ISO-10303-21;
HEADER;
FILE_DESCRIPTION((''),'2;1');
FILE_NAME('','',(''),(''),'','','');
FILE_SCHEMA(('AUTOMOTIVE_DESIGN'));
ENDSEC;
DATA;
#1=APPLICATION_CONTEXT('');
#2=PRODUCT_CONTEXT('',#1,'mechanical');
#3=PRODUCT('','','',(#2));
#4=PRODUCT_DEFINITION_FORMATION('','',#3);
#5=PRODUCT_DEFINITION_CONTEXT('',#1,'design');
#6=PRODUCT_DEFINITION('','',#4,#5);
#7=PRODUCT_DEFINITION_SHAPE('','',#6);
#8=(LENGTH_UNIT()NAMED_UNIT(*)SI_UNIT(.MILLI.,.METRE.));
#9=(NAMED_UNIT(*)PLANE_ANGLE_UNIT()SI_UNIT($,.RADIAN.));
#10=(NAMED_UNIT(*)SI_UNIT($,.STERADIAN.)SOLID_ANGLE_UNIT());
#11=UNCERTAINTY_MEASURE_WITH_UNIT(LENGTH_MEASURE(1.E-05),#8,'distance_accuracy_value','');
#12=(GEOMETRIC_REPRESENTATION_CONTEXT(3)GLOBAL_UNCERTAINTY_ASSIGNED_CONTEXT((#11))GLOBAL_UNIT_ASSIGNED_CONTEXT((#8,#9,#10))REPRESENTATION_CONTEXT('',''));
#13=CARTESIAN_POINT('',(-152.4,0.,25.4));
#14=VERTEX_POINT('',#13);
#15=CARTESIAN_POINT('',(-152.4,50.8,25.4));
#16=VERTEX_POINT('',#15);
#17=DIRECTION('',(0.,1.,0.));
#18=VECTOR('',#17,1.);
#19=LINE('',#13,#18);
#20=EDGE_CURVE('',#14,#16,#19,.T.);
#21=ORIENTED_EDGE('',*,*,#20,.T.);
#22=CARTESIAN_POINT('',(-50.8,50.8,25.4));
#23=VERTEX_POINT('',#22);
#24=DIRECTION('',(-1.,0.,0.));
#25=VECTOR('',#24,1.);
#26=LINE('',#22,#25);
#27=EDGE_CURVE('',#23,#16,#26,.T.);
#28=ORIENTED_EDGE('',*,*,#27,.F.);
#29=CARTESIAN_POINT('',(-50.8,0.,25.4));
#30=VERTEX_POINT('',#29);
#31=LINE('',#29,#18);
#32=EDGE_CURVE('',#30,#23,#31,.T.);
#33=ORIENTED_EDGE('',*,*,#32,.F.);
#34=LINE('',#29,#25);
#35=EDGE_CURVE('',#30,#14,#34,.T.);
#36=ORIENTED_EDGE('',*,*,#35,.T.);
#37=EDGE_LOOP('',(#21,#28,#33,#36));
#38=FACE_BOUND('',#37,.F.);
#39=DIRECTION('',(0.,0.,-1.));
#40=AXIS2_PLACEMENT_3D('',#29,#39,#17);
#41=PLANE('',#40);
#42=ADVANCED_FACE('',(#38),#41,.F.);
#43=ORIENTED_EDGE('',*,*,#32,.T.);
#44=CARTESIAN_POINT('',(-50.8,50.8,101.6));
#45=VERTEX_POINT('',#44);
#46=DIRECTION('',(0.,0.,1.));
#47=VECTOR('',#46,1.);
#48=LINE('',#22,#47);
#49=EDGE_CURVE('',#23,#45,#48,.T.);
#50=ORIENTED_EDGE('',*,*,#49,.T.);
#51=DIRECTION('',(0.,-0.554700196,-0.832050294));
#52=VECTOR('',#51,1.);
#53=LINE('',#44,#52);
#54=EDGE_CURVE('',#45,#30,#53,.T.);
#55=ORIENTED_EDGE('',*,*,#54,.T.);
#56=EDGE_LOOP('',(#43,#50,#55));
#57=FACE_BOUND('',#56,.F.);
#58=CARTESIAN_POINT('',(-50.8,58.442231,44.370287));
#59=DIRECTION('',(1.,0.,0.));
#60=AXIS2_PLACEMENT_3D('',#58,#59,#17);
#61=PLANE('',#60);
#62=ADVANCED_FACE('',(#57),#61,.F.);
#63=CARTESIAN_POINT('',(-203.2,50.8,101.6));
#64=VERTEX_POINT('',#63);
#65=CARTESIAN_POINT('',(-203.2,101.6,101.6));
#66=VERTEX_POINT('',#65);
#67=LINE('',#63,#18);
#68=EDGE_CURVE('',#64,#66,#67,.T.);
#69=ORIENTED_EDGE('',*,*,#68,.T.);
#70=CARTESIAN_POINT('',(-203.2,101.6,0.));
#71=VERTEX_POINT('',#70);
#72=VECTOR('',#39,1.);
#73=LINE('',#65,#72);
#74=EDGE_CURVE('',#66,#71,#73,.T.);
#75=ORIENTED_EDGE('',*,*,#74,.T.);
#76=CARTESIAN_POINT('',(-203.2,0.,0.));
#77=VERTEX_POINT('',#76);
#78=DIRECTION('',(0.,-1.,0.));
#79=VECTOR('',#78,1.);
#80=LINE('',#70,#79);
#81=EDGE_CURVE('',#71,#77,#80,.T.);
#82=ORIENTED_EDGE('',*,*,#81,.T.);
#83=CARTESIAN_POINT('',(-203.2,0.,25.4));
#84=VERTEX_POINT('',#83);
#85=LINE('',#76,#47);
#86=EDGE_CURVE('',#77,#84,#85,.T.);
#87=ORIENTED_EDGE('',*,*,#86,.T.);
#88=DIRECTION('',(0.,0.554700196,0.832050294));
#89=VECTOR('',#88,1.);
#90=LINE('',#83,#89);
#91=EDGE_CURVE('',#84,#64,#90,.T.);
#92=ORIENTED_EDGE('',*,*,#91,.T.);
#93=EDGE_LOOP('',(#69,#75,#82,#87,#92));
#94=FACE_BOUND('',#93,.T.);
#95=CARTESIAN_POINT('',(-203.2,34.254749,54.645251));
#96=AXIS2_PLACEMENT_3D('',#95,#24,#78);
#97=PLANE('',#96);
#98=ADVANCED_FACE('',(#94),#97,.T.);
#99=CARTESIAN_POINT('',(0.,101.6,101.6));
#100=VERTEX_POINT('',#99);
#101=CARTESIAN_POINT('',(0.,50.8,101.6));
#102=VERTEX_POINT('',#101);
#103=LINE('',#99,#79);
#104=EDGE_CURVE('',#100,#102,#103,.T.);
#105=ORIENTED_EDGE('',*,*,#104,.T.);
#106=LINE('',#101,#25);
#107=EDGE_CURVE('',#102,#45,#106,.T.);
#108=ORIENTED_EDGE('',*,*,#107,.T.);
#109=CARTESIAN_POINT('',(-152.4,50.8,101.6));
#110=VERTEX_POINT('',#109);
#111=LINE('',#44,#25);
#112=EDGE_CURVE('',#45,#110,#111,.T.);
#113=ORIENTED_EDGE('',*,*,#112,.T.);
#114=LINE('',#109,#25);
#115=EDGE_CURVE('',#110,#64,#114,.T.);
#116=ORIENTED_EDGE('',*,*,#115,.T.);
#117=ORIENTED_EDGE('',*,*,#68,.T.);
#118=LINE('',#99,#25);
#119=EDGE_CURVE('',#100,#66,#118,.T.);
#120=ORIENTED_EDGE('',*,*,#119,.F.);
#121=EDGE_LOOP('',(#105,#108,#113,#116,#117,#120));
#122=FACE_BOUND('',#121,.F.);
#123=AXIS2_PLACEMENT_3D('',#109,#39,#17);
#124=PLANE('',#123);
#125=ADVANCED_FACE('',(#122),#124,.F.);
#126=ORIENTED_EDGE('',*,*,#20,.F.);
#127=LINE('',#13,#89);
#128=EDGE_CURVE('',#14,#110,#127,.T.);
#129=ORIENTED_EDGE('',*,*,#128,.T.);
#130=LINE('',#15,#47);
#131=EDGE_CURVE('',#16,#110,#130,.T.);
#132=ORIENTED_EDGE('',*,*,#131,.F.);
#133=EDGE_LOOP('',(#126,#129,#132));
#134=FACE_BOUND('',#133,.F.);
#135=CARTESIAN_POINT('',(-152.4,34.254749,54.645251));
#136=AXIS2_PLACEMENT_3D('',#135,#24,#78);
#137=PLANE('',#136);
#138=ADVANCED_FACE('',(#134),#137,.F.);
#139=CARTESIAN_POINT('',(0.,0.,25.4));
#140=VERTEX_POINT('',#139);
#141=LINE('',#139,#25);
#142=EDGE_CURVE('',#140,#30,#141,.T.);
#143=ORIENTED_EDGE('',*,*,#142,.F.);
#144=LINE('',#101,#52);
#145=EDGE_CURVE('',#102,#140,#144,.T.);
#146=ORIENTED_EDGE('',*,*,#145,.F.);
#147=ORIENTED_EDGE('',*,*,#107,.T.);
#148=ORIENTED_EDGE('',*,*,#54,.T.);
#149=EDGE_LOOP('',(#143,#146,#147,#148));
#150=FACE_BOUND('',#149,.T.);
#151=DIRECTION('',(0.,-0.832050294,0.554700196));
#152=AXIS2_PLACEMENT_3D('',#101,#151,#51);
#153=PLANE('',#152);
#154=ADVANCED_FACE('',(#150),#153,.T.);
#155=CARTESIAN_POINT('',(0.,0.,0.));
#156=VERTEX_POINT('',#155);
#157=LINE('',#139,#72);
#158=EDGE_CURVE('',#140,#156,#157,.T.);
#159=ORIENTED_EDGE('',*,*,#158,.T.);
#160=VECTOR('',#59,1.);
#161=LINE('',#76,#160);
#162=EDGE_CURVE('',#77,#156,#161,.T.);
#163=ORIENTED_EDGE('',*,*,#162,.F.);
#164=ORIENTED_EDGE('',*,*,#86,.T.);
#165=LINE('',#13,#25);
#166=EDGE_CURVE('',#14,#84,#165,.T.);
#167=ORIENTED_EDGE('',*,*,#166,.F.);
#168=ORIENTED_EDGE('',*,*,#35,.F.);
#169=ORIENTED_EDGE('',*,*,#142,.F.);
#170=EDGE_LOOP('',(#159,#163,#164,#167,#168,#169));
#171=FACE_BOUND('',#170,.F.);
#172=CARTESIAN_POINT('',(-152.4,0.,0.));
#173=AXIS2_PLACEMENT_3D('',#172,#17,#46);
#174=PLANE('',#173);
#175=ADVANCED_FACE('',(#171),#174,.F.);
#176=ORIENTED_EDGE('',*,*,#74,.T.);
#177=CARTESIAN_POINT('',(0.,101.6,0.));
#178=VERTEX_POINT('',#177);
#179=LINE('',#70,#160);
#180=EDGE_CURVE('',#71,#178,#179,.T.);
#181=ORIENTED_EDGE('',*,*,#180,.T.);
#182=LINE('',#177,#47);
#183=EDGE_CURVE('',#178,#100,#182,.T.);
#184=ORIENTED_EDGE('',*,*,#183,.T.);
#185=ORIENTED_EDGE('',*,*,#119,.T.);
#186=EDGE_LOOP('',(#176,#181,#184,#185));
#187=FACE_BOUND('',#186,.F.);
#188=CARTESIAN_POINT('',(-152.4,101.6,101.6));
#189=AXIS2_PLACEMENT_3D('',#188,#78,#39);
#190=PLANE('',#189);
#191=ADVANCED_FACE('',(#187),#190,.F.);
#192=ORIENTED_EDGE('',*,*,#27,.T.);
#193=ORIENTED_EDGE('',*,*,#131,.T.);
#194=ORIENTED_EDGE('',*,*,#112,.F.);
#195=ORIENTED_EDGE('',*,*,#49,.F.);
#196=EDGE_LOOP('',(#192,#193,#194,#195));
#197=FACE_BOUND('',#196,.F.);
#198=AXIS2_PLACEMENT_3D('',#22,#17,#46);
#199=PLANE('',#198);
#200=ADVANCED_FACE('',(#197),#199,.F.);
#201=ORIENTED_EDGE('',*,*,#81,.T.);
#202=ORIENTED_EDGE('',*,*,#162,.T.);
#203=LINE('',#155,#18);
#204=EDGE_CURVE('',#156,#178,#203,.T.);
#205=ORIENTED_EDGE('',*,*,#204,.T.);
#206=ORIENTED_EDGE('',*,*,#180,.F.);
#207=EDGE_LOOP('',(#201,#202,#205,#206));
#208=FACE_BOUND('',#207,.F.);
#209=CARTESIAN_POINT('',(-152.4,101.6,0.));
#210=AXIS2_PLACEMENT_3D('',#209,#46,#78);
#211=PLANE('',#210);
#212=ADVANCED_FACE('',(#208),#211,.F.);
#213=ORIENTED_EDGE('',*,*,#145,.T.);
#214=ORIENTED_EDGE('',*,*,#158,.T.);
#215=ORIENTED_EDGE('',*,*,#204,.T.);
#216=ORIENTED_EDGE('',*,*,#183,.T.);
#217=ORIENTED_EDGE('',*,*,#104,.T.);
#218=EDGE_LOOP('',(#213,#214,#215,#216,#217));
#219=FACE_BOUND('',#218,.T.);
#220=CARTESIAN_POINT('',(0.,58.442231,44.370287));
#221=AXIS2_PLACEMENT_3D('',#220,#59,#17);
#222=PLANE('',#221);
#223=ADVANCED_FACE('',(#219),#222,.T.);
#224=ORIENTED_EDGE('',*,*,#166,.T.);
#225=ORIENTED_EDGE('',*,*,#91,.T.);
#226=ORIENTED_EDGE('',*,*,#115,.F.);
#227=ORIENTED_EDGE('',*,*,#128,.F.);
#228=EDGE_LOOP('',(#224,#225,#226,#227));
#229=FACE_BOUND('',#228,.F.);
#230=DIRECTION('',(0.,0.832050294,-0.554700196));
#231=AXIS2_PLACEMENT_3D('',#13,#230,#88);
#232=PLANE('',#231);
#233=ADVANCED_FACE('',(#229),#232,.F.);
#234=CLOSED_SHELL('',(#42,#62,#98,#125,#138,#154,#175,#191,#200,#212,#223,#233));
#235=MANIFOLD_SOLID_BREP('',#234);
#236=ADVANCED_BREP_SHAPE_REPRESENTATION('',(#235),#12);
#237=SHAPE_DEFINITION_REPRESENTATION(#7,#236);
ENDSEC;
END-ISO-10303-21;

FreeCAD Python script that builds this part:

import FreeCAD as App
import Part
import Sketcher
from FreeCAD import Vector
Q = App.Units.Quantity

doc = App.newDocument("Part")
params = doc.addObject("Spreadsheet::Sheet", "Params")
for row, (alias, value) in enumerate([
    ("sketch1_width", "4 in"),
    ("sketch1_width2", "2 in"),
    ("sketch1_height", "1 in"),
    ("pad1_length", "2 in"),
    ("sketch2_width", "2 in"),
    ("sketch2_height", "1 in"),
    ("pad2_length", "4 in"),
    ("sketch3_width", "2 in"),
    ("sketch3_width2", "4 in"),
    ("sketch3_height", "1 in"),
    ("pad3_length", "2 in"),
], start=1):
    params.set(f"A{row}", alias)
    params.set(f"B{row}", "=" + value)
    params.setAlias(f"B{row}", alias)

body = doc.addObject("PartDesign::Body", "Body")

# Sketch on YZ plane
sketch1 = body.newObject("Sketcher::SketchObject", "Sketch")
sketch1.AttachmentSupport = (doc.getObject("YZ_Plane"), [""])
sketch1.MapMode = "FlatFace"
sketch1.addGeometry(Part.LineSegment(Vector(0, 25.4, 0), Vector(0, 0, 0)), False)
sketch1.addGeometry(Part.LineSegment(Vector(0, 0, 0), Vector(101.6, 0, 0)), False)
sketch1.addGeometry(Part.LineSegment(Vector(101.6, 0, 0), Vector(101.6, 101.6, 0)), False)
sketch1.addGeometry(Part.LineSegment(Vector(101.6, 101.6, 0), Vector(50.8, 101.6, 0)), False)
sketch1.addGeometry(Part.LineSegment(Vector(50.8, 101.6, 0), Vector(0, 25.4, 0)), False)
sketch1.addConstraint(Sketcher.Constraint("Coincident", 0, 2, 1, 1))
sketch1.addConstraint(Sketcher.Constraint("Coincident", 1, 2, 2, 1))
sketch1.addConstraint(Sketcher.Constraint("Coincident", 2, 2, 3, 1))
sketch1.addConstraint(Sketcher.Constraint("Coincident", 3, 2, 4, 1))
sketch1.addConstraint(Sketcher.Constraint("Coincident", 4, 2, 0, 1))
sketch1.addConstraint(Sketcher.Constraint("Vertical", 0))
sketch1.addConstraint(Sketcher.Constraint("Horizontal", 1))
sketch1.addConstraint(Sketcher.Constraint("Vertical", 2))
sketch1.addConstraint(Sketcher.Constraint("Horizontal", 3))
sketch1.addConstraint(Sketcher.Constraint("Coincident", 0, 2, -1, 1))
sketch1.addConstraint(Sketcher.Constraint("Equal", 1, 2))
sketch1.addConstraint(Sketcher.Constraint("DistanceX", 1, 1, 1, 2, Q("4 in")))
sketch1.addConstraint(Sketcher.Constraint("DistanceX", 3, 2, 3, 1, Q("2 in")))
sketch1.addConstraint(Sketcher.Constraint("DistanceY", 0, 2, 0, 1, Q("1 in")))
sketch1.setExpression("Constraints[11]", "Params.sketch1_width")
sketch1.setExpression("Constraints[12]", "Params.sketch1_width2")
sketch1.setExpression("Constraints[13]", "Params.sketch1_height")
pad1 = body.newObject("PartDesign::Pad", "Pad")
pad1.Profile = sketch1
pad1.setExpression("Length", "Params.pad1_length")
pad1.Reversed = True

# Sketch on YZ plane
sketch2 = body.newObject("Sketcher::SketchObject", "Sketch001")
sketch2.AttachmentSupport = (doc.getObject("YZ_Plane"), [""])
sketch2.MapMode = "FlatFace"
sketch2.AttachmentOffset = App.Placement(Vector(0, 0, -2 * 25.4), App.Rotation())
sketch2.addGeometry(Part.LineSegment(Vector(0, 0, 0), Vector(0, 25.4, 0)), False)
sketch2.addGeometry(Part.LineSegment(Vector(0, 25.4, 0), Vector(50.8, 25.4, 0)), False)
sketch2.addGeometry(Part.LineSegment(Vector(50.8, 25.4, 0), Vector(50.8, 101.6, 0)), False)
sketch2.addGeometry(Part.LineSegment(Vector(50.8, 101.6, 0), Vector(101.6, 101.6, 0)), False)
sketch2.addGeometry(Part.LineSegment(Vector(101.6, 101.6, 0), Vector(101.6, 0, 0)), False)
sketch2.addGeometry(Part.LineSegment(Vector(101.6, 0, 0), Vector(0, 0, 0)), False)
sketch2.addConstraint(Sketcher.Constraint("Coincident", 0, 2, 1, 1))
sketch2.addConstraint(Sketcher.Constraint("Coincident", 1, 2, 2, 1))
sketch2.addConstraint(Sketcher.Constraint("Coincident", 2, 2, 3, 1))
sketch2.addConstraint(Sketcher.Constraint("Coincident", 3, 2, 4, 1))
sketch2.addConstraint(Sketcher.Constraint("Coincident", 4, 2, 5, 1))
sketch2.addConstraint(Sketcher.Constraint("Coincident", 5, 2, 0, 1))
sketch2.addConstraint(Sketcher.Constraint("Vertical", 0))
sketch2.addConstraint(Sketcher.Constraint("Horizontal", 1))
sketch2.addConstraint(Sketcher.Constraint("Vertical", 2))
sketch2.addConstraint(Sketcher.Constraint("Horizontal", 3))
sketch2.addConstraint(Sketcher.Constraint("Vertical", 4))
sketch2.addConstraint(Sketcher.Constraint("Horizontal", 5))
sketch2.addConstraint(Sketcher.Constraint("Coincident", 5, 2, -1, 1))
sketch2.addConstraint(Sketcher.Constraint("Equal", 1, 3))
sketch2.addConstraint(Sketcher.Constraint("Equal", 5, 4))
sketch2.addConstraint(Sketcher.Constraint("DistanceX", 1, 1, 1, 2, Q("2 in")))
sketch2.addConstraint(Sketcher.Constraint("DistanceY", 0, 1, 0, 2, Q("1 in")))
sketch2.setExpression("Constraints[15]", "Params.sketch2_width")
sketch2.setExpression("Constraints[16]", "Params.sketch2_height")
pad2 = body.newObject("PartDesign::Pad", "Pad001")
pad2.Profile = sketch2
pad2.setExpression("Length", "Params.pad2_length")
pad2.Reversed = True

# Sketch on YZ plane
sketch3 = body.newObject("Sketcher::SketchObject", "Sketch002")
sketch3.AttachmentSupport = (doc.getObject("YZ_Plane"), [""])
sketch3.MapMode = "FlatFace"
sketch3.AttachmentOffset = App.Placement(Vector(0, 0, -6 * 25.4), App.Rotation())
sketch3.addGeometry(Part.LineSegment(Vector(0, 25.4, 0), Vector(50.8, 101.6, 0)), False)
sketch3.addGeometry(Part.LineSegment(Vector(50.8, 101.6, 0), Vector(101.6, 101.6, 0)), False)
sketch3.addGeometry(Part.LineSegment(Vector(101.6, 101.6, 0), Vector(101.6, 0, 0)), False)
sketch3.addGeometry(Part.LineSegment(Vector(101.6, 0, 0), Vector(0, 0, 0)), False)
sketch3.addGeometry(Part.LineSegment(Vector(0, 0, 0), Vector(0, 25.4, 0)), False)
sketch3.addConstraint(Sketcher.Constraint("Coincident", 0, 2, 1, 1))
sketch3.addConstraint(Sketcher.Constraint("Coincident", 1, 2, 2, 1))
sketch3.addConstraint(Sketcher.Constraint("Coincident", 2, 2, 3, 1))
sketch3.addConstraint(Sketcher.Constraint("Coincident", 3, 2, 4, 1))
sketch3.addConstraint(Sketcher.Constraint("Coincident", 4, 2, 0, 1))
sketch3.addConstraint(Sketcher.Constraint("Horizontal", 1))
sketch3.addConstraint(Sketcher.Constraint("Vertical", 2))
sketch3.addConstraint(Sketcher.Constraint("Horizontal", 3))
sketch3.addConstraint(Sketcher.Constraint("Vertical", 4))
sketch3.addConstraint(Sketcher.Constraint("Coincident", 3, 2, -1, 1))
sketch3.addConstraint(Sketcher.Constraint("Equal", 3, 2))
sketch3.addConstraint(Sketcher.Constraint("DistanceX", 1, 1, 1, 2, Q("2 in")))
sketch3.addConstraint(Sketcher.Constraint("DistanceX", 3, 2, 3, 1, Q("4 in")))
sketch3.addConstraint(Sketcher.Constraint("DistanceY", 4, 1, 4, 2, Q("1 in")))
sketch3.setExpression("Constraints[11]", "Params.sketch3_width")
sketch3.setExpression("Constraints[12]", "Params.sketch3_width2")
sketch3.setExpression("Constraints[13]", "Params.sketch3_height")
pad3 = body.newObject("PartDesign::Pad", "Pad002")
pad3.Profile = sketch3
pad3.setExpression("Length", "Params.pad3_length")
pad3.Reversed = True

doc.recompute()
